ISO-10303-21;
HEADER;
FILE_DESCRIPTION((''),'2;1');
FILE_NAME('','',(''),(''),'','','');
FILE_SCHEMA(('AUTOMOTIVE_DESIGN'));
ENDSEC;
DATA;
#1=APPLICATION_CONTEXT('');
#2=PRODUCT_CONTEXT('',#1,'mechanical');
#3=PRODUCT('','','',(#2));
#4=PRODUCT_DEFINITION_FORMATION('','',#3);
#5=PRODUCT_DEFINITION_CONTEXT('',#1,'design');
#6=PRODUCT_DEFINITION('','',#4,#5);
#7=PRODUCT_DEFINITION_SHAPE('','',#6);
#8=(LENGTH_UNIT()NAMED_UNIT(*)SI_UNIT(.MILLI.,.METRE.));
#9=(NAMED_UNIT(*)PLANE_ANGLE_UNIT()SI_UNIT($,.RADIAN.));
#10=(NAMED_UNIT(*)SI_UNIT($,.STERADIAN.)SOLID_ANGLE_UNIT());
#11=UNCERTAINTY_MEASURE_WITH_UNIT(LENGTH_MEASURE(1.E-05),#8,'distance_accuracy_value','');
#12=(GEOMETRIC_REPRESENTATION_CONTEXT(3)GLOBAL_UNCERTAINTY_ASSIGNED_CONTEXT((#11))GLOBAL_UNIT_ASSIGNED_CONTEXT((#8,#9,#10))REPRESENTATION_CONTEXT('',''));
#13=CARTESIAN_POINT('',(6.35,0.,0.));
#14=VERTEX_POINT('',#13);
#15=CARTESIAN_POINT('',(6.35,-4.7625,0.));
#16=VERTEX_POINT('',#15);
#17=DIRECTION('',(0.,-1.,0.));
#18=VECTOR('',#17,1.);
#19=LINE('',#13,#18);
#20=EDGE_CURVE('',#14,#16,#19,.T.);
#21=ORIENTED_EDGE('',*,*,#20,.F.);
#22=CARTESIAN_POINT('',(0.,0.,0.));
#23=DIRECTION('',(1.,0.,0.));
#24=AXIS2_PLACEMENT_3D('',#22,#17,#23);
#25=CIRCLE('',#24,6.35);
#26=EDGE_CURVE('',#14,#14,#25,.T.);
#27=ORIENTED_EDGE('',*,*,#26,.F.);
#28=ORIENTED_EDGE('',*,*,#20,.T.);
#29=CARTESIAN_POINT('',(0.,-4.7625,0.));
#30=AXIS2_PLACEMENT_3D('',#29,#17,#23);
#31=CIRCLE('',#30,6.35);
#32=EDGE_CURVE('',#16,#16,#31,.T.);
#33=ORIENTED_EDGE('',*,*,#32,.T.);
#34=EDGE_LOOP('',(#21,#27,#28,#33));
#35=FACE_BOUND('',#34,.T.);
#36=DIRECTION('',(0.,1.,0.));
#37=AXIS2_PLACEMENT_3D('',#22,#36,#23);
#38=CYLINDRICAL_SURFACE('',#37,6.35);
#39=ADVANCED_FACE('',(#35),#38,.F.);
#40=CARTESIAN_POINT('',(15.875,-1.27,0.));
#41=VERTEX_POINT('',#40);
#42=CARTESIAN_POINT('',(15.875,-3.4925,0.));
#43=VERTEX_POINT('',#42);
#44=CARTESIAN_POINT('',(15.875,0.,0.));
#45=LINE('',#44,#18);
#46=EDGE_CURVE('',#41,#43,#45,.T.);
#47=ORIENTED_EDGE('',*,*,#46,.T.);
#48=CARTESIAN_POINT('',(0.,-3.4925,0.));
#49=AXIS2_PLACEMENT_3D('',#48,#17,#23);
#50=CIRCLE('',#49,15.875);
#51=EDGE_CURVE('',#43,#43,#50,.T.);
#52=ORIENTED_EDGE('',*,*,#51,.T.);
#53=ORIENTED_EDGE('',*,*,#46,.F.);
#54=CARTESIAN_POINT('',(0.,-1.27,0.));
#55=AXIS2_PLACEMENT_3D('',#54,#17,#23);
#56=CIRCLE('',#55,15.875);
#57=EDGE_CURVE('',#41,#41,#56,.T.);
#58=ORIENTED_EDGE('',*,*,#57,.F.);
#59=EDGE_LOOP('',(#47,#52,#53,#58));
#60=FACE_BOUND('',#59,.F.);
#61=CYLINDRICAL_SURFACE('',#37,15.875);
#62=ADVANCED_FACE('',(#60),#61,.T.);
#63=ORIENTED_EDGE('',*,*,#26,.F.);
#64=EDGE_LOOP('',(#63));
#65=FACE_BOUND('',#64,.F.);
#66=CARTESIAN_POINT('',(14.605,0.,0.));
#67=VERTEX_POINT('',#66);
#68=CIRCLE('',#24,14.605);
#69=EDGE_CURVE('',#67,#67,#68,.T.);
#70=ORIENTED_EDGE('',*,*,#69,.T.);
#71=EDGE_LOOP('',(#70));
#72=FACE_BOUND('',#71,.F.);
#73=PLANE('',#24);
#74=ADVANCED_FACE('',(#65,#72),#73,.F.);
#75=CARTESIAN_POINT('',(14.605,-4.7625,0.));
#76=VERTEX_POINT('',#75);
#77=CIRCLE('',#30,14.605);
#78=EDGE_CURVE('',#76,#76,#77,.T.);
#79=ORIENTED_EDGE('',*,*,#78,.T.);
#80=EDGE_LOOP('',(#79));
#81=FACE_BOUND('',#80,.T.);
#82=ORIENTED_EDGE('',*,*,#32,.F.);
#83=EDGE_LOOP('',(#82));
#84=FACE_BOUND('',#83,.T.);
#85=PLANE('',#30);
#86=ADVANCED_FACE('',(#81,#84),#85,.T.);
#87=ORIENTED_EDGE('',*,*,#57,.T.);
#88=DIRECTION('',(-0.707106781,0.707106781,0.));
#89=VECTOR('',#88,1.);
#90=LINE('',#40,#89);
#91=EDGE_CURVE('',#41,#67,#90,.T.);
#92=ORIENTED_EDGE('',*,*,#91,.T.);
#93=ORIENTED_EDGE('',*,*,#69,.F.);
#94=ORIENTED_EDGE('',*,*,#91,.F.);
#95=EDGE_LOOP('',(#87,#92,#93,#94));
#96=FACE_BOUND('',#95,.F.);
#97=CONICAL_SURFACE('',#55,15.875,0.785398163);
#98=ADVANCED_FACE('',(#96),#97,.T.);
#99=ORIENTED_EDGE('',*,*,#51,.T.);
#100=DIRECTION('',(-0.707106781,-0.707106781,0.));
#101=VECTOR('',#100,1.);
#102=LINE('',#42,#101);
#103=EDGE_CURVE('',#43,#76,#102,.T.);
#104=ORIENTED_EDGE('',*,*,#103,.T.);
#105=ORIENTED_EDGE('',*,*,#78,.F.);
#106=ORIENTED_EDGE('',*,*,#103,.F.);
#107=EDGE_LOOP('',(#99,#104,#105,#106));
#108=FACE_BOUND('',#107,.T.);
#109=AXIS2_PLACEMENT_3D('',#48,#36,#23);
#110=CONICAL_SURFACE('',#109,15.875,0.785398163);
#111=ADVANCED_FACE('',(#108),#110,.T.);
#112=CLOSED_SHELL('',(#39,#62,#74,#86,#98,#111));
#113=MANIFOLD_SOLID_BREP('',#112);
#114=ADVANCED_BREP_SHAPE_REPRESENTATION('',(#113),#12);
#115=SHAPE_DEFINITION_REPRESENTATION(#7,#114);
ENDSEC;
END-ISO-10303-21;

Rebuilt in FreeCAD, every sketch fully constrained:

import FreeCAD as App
import Part
import Sketcher
from FreeCAD import Vector
Q = App.Units.Quantity


def edges_at(feature, points):
    """Names of the edges that pass closest to the given points."""
    edges = feature.Shape.Edges
    near = lambda p: min(range(len(edges)), key=lambda i: edges[i].distToShape(Part.Vertex(*p))[0])
    return sorted({f"Edge{near(p) + 1}" for p in points})

doc = App.newDocument("Part")
params = doc.addObject("Spreadsheet::Sheet", "Params")
for row, (alias, value) in enumerate([
    ("sketch1_diameter", "0.5 in"),
    ("sketch1_diameter2", "1.25 in"),
    ("pad1_length", "0.1875 in"),
    ("chamfer_size", "0.05 in"),
], start=1):
    params.set(f"A{row}", alias)
    params.set(f"B{row}", "=" + value)
    params.setAlias(f"B{row}", alias)

body = doc.addObject("PartDesign::Body", "Body")

sketch1 = body.newObject("Sketcher::SketchObject", "Sketch")
sketch1.AttachmentSupport = (doc.getObject("XZ_Plane"), [""])
sketch1.MapMode = "FlatFace"
sketch1.addGeometry([
    Part.Circle(Vector(0, 0, 0), Vector(0, 0, 1), 16),
    Part.Circle(Vector(0, 0, 0), Vector(0, 0, 1), 6),
], False)
sketch1.addConstraint([
    Sketcher.Constraint("Coincident", 0, 3, -1, 1),
    Sketcher.Constraint("Coincident", 1, 3, -1, 1),
    Sketcher.Constraint("Diameter", 1, Q("0.5 in")),
    Sketcher.Constraint("Diameter", 0, Q("1.25 in")),
])
sketch1.setExpression("Constraints[2]", "Params.sketch1_diameter")
sketch1.setExpression("Constraints[3]", "Params.sketch1_diameter2")
pad1 = body.newObject("PartDesign::Pad", "Pad")
pad1.Profile = sketch1
pad1.setExpression("Length", "Params.pad1_length")
doc.recompute()

chamfer = body.newObject("PartDesign::Chamfer", "Chamfer")
chamfer.Base = (pad1, edges_at(pad1, [(-15.875, -4.763, 0), (-15.875, 0, 0)]))
chamfer.setExpression("Size", "Params.chamfer_size")

doc.recompute()
